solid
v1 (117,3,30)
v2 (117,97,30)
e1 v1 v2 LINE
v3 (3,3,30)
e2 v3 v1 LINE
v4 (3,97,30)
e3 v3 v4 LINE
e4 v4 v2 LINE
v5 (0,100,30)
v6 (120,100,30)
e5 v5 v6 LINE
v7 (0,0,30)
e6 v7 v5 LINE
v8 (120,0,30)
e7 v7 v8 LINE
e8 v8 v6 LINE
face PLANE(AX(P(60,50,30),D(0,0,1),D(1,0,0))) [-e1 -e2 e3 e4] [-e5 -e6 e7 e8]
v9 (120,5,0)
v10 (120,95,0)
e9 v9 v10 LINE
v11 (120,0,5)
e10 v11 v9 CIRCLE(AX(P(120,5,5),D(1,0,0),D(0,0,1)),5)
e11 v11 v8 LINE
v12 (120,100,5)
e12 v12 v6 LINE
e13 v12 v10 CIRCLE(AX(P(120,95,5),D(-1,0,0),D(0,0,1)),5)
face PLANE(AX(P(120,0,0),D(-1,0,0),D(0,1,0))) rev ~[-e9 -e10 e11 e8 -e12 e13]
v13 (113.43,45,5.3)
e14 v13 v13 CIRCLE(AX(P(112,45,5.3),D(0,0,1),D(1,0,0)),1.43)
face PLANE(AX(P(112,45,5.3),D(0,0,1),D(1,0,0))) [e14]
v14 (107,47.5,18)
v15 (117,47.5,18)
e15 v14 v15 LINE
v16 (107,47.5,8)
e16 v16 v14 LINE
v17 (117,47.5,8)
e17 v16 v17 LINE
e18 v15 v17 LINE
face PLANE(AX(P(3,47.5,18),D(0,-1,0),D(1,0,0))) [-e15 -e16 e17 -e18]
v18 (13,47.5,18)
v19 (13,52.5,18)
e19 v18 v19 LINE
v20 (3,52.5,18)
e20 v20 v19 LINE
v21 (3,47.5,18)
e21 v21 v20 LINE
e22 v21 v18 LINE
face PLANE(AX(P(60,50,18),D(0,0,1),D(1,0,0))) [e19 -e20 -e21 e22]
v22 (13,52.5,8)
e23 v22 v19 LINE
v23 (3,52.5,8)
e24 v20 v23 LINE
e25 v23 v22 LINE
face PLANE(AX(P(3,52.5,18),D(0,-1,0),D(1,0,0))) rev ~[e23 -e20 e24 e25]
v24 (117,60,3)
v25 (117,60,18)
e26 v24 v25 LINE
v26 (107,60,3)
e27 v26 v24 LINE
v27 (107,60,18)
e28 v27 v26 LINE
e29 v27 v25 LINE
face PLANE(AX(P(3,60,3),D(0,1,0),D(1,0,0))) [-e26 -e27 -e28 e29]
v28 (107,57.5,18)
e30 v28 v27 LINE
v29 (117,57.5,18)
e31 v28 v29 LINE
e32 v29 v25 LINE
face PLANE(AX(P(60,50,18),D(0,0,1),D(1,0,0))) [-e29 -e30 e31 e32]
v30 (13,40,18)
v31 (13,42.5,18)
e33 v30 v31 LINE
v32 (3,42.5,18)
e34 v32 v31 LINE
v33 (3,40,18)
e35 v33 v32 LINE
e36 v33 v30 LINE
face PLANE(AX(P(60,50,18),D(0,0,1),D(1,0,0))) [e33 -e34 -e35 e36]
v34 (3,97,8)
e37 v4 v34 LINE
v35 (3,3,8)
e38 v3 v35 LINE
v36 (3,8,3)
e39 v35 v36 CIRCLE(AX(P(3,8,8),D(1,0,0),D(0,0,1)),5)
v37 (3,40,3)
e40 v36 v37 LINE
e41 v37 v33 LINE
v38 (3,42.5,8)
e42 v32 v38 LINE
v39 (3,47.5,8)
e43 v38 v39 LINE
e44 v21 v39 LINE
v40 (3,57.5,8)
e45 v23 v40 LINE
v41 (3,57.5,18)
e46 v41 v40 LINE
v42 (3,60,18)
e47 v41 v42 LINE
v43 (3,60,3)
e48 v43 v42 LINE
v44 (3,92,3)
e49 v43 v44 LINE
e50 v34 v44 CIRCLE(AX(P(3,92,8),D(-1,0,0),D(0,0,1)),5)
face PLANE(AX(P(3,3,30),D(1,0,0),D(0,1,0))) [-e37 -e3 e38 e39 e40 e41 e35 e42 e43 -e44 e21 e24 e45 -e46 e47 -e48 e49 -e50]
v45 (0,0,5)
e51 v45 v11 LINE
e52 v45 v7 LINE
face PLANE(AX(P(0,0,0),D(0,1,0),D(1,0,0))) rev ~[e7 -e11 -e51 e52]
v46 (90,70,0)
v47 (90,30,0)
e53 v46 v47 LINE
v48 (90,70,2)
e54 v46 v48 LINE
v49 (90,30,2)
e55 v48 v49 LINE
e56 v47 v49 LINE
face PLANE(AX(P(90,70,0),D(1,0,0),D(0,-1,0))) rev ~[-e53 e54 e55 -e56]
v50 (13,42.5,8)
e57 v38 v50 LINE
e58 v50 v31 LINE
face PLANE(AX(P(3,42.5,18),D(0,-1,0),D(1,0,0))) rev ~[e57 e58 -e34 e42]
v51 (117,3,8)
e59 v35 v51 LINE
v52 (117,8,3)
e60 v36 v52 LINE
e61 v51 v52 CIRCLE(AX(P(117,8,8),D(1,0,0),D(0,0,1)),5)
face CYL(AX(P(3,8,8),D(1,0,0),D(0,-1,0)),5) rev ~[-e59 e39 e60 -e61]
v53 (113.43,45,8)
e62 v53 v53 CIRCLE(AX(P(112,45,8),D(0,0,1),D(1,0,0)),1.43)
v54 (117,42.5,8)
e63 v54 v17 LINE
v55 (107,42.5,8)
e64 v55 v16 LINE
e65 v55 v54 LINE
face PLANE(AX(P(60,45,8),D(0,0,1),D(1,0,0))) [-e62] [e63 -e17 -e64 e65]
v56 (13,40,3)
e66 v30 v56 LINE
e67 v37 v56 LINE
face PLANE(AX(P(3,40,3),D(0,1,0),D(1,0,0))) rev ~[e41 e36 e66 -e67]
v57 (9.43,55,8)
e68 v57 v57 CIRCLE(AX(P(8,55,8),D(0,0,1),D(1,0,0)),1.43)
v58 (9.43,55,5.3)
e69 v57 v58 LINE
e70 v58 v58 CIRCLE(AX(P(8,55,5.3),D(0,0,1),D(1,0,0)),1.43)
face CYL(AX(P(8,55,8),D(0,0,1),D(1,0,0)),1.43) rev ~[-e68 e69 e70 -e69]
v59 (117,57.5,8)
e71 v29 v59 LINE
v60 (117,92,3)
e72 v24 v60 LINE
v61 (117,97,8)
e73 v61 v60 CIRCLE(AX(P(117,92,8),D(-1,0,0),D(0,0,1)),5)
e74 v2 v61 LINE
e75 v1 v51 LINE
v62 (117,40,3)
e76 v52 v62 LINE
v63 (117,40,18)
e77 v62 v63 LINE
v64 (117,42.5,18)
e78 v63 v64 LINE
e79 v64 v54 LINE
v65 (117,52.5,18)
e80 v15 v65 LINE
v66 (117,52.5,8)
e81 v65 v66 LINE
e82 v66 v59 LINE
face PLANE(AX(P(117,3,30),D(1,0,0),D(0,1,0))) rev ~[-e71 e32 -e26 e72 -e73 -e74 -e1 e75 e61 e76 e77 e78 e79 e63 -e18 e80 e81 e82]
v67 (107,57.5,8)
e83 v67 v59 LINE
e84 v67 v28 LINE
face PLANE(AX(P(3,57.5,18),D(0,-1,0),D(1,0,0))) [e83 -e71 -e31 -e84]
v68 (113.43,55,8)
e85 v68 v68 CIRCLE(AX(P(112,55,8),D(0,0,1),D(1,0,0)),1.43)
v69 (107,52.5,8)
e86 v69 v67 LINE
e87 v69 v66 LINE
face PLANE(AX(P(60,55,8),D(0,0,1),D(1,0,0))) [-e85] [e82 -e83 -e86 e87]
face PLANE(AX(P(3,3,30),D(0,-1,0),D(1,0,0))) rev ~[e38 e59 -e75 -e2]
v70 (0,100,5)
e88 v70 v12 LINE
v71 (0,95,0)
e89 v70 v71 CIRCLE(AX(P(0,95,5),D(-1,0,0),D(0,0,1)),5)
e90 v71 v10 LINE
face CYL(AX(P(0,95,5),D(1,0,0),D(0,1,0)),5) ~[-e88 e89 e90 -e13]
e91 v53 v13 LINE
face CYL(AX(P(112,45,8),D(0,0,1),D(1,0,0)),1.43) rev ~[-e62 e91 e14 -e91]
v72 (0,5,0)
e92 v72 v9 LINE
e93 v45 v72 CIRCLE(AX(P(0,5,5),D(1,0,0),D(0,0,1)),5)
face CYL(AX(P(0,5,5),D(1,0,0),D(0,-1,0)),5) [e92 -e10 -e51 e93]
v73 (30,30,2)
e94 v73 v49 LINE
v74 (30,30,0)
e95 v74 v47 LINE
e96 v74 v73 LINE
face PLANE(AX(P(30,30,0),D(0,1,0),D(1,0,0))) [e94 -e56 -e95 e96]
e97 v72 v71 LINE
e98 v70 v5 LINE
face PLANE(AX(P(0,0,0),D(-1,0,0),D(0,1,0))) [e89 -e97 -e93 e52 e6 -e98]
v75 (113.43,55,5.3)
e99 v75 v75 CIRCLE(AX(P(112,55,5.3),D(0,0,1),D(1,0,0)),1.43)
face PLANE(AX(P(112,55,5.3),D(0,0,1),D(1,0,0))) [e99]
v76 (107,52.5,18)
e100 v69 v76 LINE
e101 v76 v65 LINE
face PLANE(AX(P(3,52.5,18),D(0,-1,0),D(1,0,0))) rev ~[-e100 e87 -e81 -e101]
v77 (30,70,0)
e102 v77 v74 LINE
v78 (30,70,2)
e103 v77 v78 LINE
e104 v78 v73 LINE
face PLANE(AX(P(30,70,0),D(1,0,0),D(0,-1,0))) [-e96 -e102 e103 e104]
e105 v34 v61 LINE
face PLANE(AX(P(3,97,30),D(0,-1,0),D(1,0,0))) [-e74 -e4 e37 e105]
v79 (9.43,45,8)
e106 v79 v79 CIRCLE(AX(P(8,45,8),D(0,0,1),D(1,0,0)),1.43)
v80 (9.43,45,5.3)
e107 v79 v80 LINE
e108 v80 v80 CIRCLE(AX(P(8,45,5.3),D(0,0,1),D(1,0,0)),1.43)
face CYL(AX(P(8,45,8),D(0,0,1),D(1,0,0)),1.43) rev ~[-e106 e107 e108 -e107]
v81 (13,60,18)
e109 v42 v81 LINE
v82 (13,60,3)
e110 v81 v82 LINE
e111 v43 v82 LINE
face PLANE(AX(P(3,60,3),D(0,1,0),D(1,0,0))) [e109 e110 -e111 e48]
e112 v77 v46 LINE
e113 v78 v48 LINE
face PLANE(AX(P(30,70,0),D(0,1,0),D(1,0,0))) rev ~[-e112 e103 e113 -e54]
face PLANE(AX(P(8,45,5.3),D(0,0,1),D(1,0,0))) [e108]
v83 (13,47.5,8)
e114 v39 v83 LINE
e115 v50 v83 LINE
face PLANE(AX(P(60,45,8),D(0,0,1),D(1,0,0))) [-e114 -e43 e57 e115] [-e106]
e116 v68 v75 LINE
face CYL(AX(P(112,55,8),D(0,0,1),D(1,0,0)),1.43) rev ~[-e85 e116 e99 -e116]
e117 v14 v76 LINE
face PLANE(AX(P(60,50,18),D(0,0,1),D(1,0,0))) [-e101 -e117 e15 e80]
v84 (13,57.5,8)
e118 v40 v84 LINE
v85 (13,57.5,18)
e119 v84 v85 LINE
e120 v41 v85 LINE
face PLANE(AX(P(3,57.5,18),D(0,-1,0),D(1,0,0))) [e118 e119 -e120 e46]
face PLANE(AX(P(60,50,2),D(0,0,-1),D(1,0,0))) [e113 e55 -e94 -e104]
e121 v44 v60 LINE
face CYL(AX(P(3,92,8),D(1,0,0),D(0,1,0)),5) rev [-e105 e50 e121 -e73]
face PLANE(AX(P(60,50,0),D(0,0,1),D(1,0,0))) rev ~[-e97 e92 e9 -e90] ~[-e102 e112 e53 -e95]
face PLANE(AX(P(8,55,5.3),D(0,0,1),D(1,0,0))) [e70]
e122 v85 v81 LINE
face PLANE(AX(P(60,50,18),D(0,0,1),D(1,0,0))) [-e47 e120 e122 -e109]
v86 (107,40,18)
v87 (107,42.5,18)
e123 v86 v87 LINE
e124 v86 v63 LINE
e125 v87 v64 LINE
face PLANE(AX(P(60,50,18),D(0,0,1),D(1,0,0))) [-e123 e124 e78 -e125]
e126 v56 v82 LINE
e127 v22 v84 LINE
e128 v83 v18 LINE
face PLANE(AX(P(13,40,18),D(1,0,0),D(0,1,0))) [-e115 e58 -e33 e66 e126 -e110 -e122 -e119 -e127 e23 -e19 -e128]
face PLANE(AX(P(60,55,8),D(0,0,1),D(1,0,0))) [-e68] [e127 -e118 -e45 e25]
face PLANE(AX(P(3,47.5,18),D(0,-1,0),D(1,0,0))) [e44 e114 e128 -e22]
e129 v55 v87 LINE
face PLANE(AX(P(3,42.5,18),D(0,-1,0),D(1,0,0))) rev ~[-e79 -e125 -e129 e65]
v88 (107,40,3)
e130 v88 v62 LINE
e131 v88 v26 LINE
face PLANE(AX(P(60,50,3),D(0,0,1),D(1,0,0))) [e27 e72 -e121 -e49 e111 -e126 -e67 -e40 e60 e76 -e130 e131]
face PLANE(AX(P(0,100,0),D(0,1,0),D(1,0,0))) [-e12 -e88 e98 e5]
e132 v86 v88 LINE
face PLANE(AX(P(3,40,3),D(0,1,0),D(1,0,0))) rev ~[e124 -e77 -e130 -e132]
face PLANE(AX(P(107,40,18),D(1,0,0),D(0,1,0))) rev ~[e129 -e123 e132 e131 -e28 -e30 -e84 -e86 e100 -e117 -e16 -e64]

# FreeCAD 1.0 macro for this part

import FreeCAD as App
import Part
import Sketcher

V = App.Vector
Q = App.Units.Quantity


def edges_at(feature, points):
    """Names of the edges that pass closest to the given points."""
    edges = feature.Shape.Edges
    near = lambda p: min(range(len(edges)), key=lambda i: edges[i].distToShape(Part.Vertex(*p))[0])
    return sorted({f"Edge{near(p) + 1}" for p in points})

doc = App.newDocument("Part")
body = doc.addObject("PartDesign::Body", "Body")

# Sketch on XY plane
sketch1 = doc.addObject("Sketcher::SketchObject", "Sketch")
body.addObject(sketch1)
sketch1.AttachmentSupport = (doc.XY_Plane, [""])
sketch1.MapMode = "FlatFace"
sketch1.addGeometry([
    Part.LineSegment(V(0, 100, 0), V(0, 0, 0)),
    Part.LineSegment(V(0, 0, 0), V(120, 0, 0)),
    Part.LineSegment(V(120, 0, 0), V(120, 100, 0)),
    Part.LineSegment(V(120, 100, 0), V(0, 100, 0)),
], False)
sketch1.addConstraint([
    Sketcher.Constraint("Coincident", 0, 2, 1, 1),
    Sketcher.Constraint("Coincident", 1, 2, 2, 1),
    Sketcher.Constraint("Coincident", 2, 2, 3, 1),
    Sketcher.Constraint("Coincident", 3, 2, 0, 1),
    Sketcher.Constraint("Vertical", 0),
    Sketcher.Constraint("Horizontal", 1),
    Sketcher.Constraint("Vertical", 2),
    Sketcher.Constraint("Horizontal", 3),
    Sketcher.Constraint("Coincident", 0, 2, -1, 1),
    Sketcher.Constraint("DistanceX", 1, 1, 1, 2, Q("120 mm")),
    Sketcher.Constraint("DistanceY", 0, 2, 0, 1, Q("100 mm")),
])
pad1 = doc.addObject("PartDesign::Pad", "Pad")
body.addObject(pad1)
pad1.Profile = sketch1
pad1.Length = 30

# Sketch on XY plane
sketch2 = doc.addObject("Sketcher::SketchObject", "Sketch001")
body.addObject(sketch2)
sketch2.AttachmentSupport = (doc.XY_Plane, [""])
sketch2.MapMode = "FlatFace"
sketch2.AttachmentOffset = App.Placement(V(0, 0, 30), App.Rotation())
sketch2.addGeometry([
    Part.LineSegment(V(3, 97, 0), V(3, 3, 0)),
    Part.LineSegment(V(3, 3, 0), V(117, 3, 0)),
    Part.LineSegment(V(117, 3, 0), V(117, 97, 0)),
    Part.LineSegment(V(117, 97, 0), V(3, 97, 0)),
], False)
sketch2.addConstraint([
    Sketcher.Constraint("Coincident", 0, 2, 1, 1),
    Sketcher.Constraint("Coincident", 1, 2, 2, 1),
    Sketcher.Constraint("Coincident", 2, 2, 3, 1),
    Sketcher.Constraint("Coincident", 3, 2, 0, 1),
    Sketcher.Constraint("Vertical", 0),
    Sketcher.Constraint("Horizontal", 1),
    Sketcher.Constraint("Vertical", 2),
    Sketcher.Constraint("Horizontal", 3),
    Sketcher.Constraint("DistanceX", 1, 1, 1, 2, Q("114 mm")),
    Sketcher.Constraint("DistanceY", 0, 2, 0, 1, Q("94 mm")),
    Sketcher.Constraint("DistanceX", -1, 1, 0, 2, Q("3 mm")),
    Sketcher.Constraint("DistanceY", -1, 1, 0, 2, Q("3 mm")),
])
pocket1 = doc.addObject("PartDesign::Pocket", "Pocket")
body.addObject(pocket1)
pocket1.Profile = sketch2
pocket1.Length = 27

# Sketch on XY plane
sketch3 = doc.addObject("Sketcher::SketchObject", "Sketch002")
body.addObject(sketch3)
sketch3.AttachmentSupport = (doc.XY_Plane, [""])
sketch3.MapMode = "FlatFace"
sketch3.AttachmentOffset = App.Placement(V(0, 0, 3), App.Rotation())
sketch3.addGeometry([
    Part.LineSegment(V(3, 60, 0), V(3, 40, 0)),
    Part.LineSegment(V(3, 40, 0), V(117, 40, 0)),
    Part.LineSegment(V(117, 40, 0), V(117, 60, 0)),
    Part.LineSegment(V(117, 60, 0), V(3, 60, 0)),
], False)
sketch3.addConstraint([
    Sketcher.Constraint("Coincident", 0, 2, 1, 1),
    Sketcher.Constraint("Coincident", 1, 2, 2, 1),
    Sketcher.Constraint("Coincident", 2, 2, 3, 1),
    Sketcher.Constraint("Coincident", 3, 2, 0, 1),
    Sketcher.Constraint("Vertical", 0),
    Sketcher.Constraint("Horizontal", 1),
    Sketcher.Constraint("Vertical", 2),
    Sketcher.Constraint("Horizontal", 3),
    Sketcher.Constraint("DistanceX", 1, 1, 1, 2, Q("114 mm")),
    Sketcher.Constraint("DistanceY", 0, 2, 0, 1, Q("20 mm")),
    Sketcher.Constraint("DistanceX", -1, 1, 0, 2, Q("3 mm")),
    Sketcher.Constraint("DistanceY", -1, 1, 0, 2, Q("40 mm")),
])
pad2 = doc.addObject("PartDesign::Pad", "Pad001")
body.addObject(pad2)
pad2.Profile = sketch3
pad2.Length = 15

# Sketch on XY plane
sketch4 = doc.addObject("Sketcher::SketchObject", "Sketch003")
body.addObject(sketch4)
sketch4.AttachmentSupport = (doc.XY_Plane, [""])
sketch4.MapMode = "FlatFace"
sketch4.AttachmentOffset = App.Placement(V(0, 0, 18), App.Rotation())
sketch4.addGeometry([
    Part.LineSegment(V(3, 58, 0), V(3, 52, 0)),  # 0
    Part.LineSegment(V(3, 52, 0), V(117, 52, 0)),  # 1
    Part.LineSegment(V(117, 52, 0), V(117, 58, 0)),  # 2
    Part.LineSegment(V(117, 58, 0), V(3, 58, 0)),  # 3
    Part.LineSegment(V(3, 48, 0), V(3, 42, 0)),  # 4
    Part.LineSegment(V(3, 42, 0), V(117, 42, 0)),  # 5
    Part.LineSegment(V(117, 42, 0), V(117, 48, 0)),  # 6
    Part.LineSegment(V(117, 48, 0), V(3, 48, 0)),  # 7
], False)
sketch4.addConstraint([
    Sketcher.Constraint("Coincident", 0, 2, 1, 1),
    Sketcher.Constraint("Coincident", 1, 2, 2, 1),
    Sketcher.Constraint("Coincident", 2, 2, 3, 1),
    Sketcher.Constraint("Coincident", 3, 2, 0, 1),
    Sketcher.Constraint("Coincident", 4, 2, 5, 1),
    Sketcher.Constraint("Coincident", 5, 2, 6, 1),
    Sketcher.Constraint("Coincident", 6, 2, 7, 1),
    Sketcher.Constraint("Coincident", 7, 2, 4, 1),
    Sketcher.Constraint("Vertical", 0),
    Sketcher.Constraint("Horizontal", 1),
    Sketcher.Constraint("Vertical", 2),
    Sketcher.Constraint("Horizontal", 3),
    Sketcher.Constraint("Vertical", 4),
    Sketcher.Constraint("Horizontal", 5),
    Sketcher.Constraint("Vertical", 6),
    Sketcher.Constraint("Horizontal", 7),
    Sketcher.Constraint("Vertical", 3, 2, 4, 2),
    Sketcher.Constraint("Vertical", 2, 2, 5, 2),
    Sketcher.Constraint("Equal", 2, 4),
    Sketcher.Constraint("DistanceX", 1, 1, 1, 2, Q("114 mm")),
    Sketcher.Constraint("DistanceY", 0, 2, 0, 1, Q("5 mm")),
    Sketcher.Constraint("DistanceX", -1, 1, 0, 2, Q("3 mm")),
    Sketcher.Constraint("DistanceY", 4, 2, 0, 2, Q("10 mm")),
    Sketcher.Constraint("DistanceY", -1, 1, 0, 2, Q("52.5 mm")),
])
pocket2 = doc.addObject("PartDesign::Pocket", "Pocket001")
body.addObject(pocket2)
pocket2.Profile = sketch4
pocket2.Length = 10

# Sketch on XY plane
sketch5 = doc.addObject("Sketcher::SketchObject", "Sketch004")
body.addObject(sketch5)
sketch5.AttachmentSupport = (doc.XY_Plane, [""])
sketch5.MapMode = "FlatFace"
sketch5.AttachmentOffset = App.Placement(V(0, 0, 18), App.Rotation())
sketch5.addGeometry([
    Part.LineSegment(V(13, 60, 0), V(13, 40, 0)),
    Part.LineSegment(V(13, 40, 0), V(107, 40, 0)),
    Part.LineSegment(V(107, 40, 0), V(107, 60, 0)),
    Part.LineSegment(V(107, 60, 0), V(13, 60, 0)),
], False)
sketch5.addConstraint([
    Sketcher.Constraint("Coincident", 0, 2, 1, 1),
    Sketcher.Constraint("Coincident", 1, 2, 2, 1),
    Sketcher.Constraint("Coincident", 2, 2, 3, 1),
    Sketcher.Constraint("Coincident", 3, 2, 0, 1),
    Sketcher.Constraint("Vertical", 0),
    Sketcher.Constraint("Horizontal", 1),
    Sketcher.Constraint("Vertical", 2),
    Sketcher.Constraint("Horizontal", 3),
    Sketcher.Constraint("DistanceX", 1, 1, 1, 2, Q("94 mm")),
    Sketcher.Constraint("DistanceY", 0, 2, 0, 1, Q("20 mm")),
    Sketcher.Constraint("DistanceX", -1, 1, 0, 2, Q("13 mm")),
    Sketcher.Constraint("DistanceY", -1, 1, 0, 2, Q("40 mm")),
])
pocket3 = doc.addObject("PartDesign::Pocket", "Pocket002")
body.addObject(pocket3)
pocket3.Profile = sketch5
pocket3.Length = 15

# Sketch on XY plane
sketch6 = doc.addObject("Sketcher::SketchObject", "Sketch005")
body.addObject(sketch6)
sketch6.AttachmentSupport = (doc.XY_Plane, [""])
sketch6.MapMode = "FlatFace"
sketch6.AttachmentOffset = App.Placement(V(0, 0, 8), App.Rotation())
sketch6.addGeometry([
    Part.Circle(V(112, 45, 0), V(0, 0, 1), 1.4),
    Part.Circle(V(112, 55, 0), V(0, 0, 1), 1.4),
    Part.Circle(V(8, 45, 0), V(0, 0, 1), 1.4),
    Part.Circle(V(8, 55, 0), V(0, 0, 1), 1.4),
], False)
sketch6.addConstraint([
    Sketcher.Constraint("Equal", 0, 1),
    Sketcher.Constraint("Equal", 1, 2),
    Sketcher.Constraint("Equal", 2, 3),
    Sketcher.Constraint("Horizontal", 0, 3, 2, 3),
    Sketcher.Constraint("Horizontal", 1, 3, 3, 3),
    Sketcher.Constraint("Vertical", 0, 3, 1, 3),
    Sketcher.Constraint("Vertical", 2, 3, 3, 3),
    Sketcher.Constraint("Diameter", 0, Q("2.86 mm")),
    Sketcher.Constraint("DistanceX", -1, 1, 0, 3, Q("112 mm")),
    Sketcher.Constraint("DistanceY", -1, 1, 0, 3, Q("45 mm")),
    Sketcher.Constraint("DistanceY", -1, 1, 1, 3, Q("55 mm")),
    Sketcher.Constraint("DistanceX", -1, 1, 2, 3, Q("8 mm")),
])
pocket4 = doc.addObject("PartDesign::Pocket", "Pocket003")
body.addObject(pocket4)
pocket4.Profile = sketch6
pocket4.Length = 2.7
doc.recompute()

fillet = doc.addObject("PartDesign::Fillet", "Fillet")
body.addObject(fillet)
fillet.Base = (pocket4, edges_at(pocket4, [
    (60, 0, 0),
    (60, 3, 3),
    (60, 97, 3),
    (60, 100, 0),
]))
fillet.Radius = 5

# Sketch on XY plane
sketch7 = doc.addObject("Sketcher::SketchObject", "Sketch006")
body.addObject(sketch7)
sketch7.AttachmentSupport = (doc.XY_Plane, [""])
sketch7.MapMode = "FlatFace"
sketch7.addGeometry([
    Part.LineSegment(V(30, 30, 0), V(30, 70, 0)),
    Part.LineSegment(V(30, 70, 0), V(90, 70, 0)),
    Part.LineSegment(V(90, 70, 0), V(90, 30, 0)),
    Part.LineSegment(V(90, 30, 0), V(30, 30, 0)),
], False)
sketch7.addConstraint([
    Sketcher.Constraint("Coincident", 0, 2, 1, 1),
    Sketcher.Constraint("Coincident", 1, 2, 2, 1),
    Sketcher.Constraint("Coincident", 2, 2, 3, 1),
    Sketcher.Constraint("Coincident", 3, 2, 0, 1),
    Sketcher.Constraint("Vertical", 0),
    Sketcher.Constraint("Horizontal", 1),
    Sketcher.Constraint("Vertical", 2),
    Sketcher.Constraint("Horizontal", 3),
    Sketcher.Constraint("DistanceX", 1, 1, 1, 2, Q("60 mm")),
    Sketcher.Constraint("DistanceY", 0, 1, 0, 2, Q("40 mm")),
    Sketcher.Constraint("DistanceX", -1, 1, 0, 2, Q("30 mm")),
    Sketcher.Constraint("DistanceY", -1, 1, 0, 2, Q("70 mm")),
])
pocket5 = doc.addObject("PartDesign::Pocket", "Pocket004")
body.addObject(pocket5)
pocket5.Profile = sketch7
pocket5.Length = 2
pocket5.Reversed = True

doc.recompute()
